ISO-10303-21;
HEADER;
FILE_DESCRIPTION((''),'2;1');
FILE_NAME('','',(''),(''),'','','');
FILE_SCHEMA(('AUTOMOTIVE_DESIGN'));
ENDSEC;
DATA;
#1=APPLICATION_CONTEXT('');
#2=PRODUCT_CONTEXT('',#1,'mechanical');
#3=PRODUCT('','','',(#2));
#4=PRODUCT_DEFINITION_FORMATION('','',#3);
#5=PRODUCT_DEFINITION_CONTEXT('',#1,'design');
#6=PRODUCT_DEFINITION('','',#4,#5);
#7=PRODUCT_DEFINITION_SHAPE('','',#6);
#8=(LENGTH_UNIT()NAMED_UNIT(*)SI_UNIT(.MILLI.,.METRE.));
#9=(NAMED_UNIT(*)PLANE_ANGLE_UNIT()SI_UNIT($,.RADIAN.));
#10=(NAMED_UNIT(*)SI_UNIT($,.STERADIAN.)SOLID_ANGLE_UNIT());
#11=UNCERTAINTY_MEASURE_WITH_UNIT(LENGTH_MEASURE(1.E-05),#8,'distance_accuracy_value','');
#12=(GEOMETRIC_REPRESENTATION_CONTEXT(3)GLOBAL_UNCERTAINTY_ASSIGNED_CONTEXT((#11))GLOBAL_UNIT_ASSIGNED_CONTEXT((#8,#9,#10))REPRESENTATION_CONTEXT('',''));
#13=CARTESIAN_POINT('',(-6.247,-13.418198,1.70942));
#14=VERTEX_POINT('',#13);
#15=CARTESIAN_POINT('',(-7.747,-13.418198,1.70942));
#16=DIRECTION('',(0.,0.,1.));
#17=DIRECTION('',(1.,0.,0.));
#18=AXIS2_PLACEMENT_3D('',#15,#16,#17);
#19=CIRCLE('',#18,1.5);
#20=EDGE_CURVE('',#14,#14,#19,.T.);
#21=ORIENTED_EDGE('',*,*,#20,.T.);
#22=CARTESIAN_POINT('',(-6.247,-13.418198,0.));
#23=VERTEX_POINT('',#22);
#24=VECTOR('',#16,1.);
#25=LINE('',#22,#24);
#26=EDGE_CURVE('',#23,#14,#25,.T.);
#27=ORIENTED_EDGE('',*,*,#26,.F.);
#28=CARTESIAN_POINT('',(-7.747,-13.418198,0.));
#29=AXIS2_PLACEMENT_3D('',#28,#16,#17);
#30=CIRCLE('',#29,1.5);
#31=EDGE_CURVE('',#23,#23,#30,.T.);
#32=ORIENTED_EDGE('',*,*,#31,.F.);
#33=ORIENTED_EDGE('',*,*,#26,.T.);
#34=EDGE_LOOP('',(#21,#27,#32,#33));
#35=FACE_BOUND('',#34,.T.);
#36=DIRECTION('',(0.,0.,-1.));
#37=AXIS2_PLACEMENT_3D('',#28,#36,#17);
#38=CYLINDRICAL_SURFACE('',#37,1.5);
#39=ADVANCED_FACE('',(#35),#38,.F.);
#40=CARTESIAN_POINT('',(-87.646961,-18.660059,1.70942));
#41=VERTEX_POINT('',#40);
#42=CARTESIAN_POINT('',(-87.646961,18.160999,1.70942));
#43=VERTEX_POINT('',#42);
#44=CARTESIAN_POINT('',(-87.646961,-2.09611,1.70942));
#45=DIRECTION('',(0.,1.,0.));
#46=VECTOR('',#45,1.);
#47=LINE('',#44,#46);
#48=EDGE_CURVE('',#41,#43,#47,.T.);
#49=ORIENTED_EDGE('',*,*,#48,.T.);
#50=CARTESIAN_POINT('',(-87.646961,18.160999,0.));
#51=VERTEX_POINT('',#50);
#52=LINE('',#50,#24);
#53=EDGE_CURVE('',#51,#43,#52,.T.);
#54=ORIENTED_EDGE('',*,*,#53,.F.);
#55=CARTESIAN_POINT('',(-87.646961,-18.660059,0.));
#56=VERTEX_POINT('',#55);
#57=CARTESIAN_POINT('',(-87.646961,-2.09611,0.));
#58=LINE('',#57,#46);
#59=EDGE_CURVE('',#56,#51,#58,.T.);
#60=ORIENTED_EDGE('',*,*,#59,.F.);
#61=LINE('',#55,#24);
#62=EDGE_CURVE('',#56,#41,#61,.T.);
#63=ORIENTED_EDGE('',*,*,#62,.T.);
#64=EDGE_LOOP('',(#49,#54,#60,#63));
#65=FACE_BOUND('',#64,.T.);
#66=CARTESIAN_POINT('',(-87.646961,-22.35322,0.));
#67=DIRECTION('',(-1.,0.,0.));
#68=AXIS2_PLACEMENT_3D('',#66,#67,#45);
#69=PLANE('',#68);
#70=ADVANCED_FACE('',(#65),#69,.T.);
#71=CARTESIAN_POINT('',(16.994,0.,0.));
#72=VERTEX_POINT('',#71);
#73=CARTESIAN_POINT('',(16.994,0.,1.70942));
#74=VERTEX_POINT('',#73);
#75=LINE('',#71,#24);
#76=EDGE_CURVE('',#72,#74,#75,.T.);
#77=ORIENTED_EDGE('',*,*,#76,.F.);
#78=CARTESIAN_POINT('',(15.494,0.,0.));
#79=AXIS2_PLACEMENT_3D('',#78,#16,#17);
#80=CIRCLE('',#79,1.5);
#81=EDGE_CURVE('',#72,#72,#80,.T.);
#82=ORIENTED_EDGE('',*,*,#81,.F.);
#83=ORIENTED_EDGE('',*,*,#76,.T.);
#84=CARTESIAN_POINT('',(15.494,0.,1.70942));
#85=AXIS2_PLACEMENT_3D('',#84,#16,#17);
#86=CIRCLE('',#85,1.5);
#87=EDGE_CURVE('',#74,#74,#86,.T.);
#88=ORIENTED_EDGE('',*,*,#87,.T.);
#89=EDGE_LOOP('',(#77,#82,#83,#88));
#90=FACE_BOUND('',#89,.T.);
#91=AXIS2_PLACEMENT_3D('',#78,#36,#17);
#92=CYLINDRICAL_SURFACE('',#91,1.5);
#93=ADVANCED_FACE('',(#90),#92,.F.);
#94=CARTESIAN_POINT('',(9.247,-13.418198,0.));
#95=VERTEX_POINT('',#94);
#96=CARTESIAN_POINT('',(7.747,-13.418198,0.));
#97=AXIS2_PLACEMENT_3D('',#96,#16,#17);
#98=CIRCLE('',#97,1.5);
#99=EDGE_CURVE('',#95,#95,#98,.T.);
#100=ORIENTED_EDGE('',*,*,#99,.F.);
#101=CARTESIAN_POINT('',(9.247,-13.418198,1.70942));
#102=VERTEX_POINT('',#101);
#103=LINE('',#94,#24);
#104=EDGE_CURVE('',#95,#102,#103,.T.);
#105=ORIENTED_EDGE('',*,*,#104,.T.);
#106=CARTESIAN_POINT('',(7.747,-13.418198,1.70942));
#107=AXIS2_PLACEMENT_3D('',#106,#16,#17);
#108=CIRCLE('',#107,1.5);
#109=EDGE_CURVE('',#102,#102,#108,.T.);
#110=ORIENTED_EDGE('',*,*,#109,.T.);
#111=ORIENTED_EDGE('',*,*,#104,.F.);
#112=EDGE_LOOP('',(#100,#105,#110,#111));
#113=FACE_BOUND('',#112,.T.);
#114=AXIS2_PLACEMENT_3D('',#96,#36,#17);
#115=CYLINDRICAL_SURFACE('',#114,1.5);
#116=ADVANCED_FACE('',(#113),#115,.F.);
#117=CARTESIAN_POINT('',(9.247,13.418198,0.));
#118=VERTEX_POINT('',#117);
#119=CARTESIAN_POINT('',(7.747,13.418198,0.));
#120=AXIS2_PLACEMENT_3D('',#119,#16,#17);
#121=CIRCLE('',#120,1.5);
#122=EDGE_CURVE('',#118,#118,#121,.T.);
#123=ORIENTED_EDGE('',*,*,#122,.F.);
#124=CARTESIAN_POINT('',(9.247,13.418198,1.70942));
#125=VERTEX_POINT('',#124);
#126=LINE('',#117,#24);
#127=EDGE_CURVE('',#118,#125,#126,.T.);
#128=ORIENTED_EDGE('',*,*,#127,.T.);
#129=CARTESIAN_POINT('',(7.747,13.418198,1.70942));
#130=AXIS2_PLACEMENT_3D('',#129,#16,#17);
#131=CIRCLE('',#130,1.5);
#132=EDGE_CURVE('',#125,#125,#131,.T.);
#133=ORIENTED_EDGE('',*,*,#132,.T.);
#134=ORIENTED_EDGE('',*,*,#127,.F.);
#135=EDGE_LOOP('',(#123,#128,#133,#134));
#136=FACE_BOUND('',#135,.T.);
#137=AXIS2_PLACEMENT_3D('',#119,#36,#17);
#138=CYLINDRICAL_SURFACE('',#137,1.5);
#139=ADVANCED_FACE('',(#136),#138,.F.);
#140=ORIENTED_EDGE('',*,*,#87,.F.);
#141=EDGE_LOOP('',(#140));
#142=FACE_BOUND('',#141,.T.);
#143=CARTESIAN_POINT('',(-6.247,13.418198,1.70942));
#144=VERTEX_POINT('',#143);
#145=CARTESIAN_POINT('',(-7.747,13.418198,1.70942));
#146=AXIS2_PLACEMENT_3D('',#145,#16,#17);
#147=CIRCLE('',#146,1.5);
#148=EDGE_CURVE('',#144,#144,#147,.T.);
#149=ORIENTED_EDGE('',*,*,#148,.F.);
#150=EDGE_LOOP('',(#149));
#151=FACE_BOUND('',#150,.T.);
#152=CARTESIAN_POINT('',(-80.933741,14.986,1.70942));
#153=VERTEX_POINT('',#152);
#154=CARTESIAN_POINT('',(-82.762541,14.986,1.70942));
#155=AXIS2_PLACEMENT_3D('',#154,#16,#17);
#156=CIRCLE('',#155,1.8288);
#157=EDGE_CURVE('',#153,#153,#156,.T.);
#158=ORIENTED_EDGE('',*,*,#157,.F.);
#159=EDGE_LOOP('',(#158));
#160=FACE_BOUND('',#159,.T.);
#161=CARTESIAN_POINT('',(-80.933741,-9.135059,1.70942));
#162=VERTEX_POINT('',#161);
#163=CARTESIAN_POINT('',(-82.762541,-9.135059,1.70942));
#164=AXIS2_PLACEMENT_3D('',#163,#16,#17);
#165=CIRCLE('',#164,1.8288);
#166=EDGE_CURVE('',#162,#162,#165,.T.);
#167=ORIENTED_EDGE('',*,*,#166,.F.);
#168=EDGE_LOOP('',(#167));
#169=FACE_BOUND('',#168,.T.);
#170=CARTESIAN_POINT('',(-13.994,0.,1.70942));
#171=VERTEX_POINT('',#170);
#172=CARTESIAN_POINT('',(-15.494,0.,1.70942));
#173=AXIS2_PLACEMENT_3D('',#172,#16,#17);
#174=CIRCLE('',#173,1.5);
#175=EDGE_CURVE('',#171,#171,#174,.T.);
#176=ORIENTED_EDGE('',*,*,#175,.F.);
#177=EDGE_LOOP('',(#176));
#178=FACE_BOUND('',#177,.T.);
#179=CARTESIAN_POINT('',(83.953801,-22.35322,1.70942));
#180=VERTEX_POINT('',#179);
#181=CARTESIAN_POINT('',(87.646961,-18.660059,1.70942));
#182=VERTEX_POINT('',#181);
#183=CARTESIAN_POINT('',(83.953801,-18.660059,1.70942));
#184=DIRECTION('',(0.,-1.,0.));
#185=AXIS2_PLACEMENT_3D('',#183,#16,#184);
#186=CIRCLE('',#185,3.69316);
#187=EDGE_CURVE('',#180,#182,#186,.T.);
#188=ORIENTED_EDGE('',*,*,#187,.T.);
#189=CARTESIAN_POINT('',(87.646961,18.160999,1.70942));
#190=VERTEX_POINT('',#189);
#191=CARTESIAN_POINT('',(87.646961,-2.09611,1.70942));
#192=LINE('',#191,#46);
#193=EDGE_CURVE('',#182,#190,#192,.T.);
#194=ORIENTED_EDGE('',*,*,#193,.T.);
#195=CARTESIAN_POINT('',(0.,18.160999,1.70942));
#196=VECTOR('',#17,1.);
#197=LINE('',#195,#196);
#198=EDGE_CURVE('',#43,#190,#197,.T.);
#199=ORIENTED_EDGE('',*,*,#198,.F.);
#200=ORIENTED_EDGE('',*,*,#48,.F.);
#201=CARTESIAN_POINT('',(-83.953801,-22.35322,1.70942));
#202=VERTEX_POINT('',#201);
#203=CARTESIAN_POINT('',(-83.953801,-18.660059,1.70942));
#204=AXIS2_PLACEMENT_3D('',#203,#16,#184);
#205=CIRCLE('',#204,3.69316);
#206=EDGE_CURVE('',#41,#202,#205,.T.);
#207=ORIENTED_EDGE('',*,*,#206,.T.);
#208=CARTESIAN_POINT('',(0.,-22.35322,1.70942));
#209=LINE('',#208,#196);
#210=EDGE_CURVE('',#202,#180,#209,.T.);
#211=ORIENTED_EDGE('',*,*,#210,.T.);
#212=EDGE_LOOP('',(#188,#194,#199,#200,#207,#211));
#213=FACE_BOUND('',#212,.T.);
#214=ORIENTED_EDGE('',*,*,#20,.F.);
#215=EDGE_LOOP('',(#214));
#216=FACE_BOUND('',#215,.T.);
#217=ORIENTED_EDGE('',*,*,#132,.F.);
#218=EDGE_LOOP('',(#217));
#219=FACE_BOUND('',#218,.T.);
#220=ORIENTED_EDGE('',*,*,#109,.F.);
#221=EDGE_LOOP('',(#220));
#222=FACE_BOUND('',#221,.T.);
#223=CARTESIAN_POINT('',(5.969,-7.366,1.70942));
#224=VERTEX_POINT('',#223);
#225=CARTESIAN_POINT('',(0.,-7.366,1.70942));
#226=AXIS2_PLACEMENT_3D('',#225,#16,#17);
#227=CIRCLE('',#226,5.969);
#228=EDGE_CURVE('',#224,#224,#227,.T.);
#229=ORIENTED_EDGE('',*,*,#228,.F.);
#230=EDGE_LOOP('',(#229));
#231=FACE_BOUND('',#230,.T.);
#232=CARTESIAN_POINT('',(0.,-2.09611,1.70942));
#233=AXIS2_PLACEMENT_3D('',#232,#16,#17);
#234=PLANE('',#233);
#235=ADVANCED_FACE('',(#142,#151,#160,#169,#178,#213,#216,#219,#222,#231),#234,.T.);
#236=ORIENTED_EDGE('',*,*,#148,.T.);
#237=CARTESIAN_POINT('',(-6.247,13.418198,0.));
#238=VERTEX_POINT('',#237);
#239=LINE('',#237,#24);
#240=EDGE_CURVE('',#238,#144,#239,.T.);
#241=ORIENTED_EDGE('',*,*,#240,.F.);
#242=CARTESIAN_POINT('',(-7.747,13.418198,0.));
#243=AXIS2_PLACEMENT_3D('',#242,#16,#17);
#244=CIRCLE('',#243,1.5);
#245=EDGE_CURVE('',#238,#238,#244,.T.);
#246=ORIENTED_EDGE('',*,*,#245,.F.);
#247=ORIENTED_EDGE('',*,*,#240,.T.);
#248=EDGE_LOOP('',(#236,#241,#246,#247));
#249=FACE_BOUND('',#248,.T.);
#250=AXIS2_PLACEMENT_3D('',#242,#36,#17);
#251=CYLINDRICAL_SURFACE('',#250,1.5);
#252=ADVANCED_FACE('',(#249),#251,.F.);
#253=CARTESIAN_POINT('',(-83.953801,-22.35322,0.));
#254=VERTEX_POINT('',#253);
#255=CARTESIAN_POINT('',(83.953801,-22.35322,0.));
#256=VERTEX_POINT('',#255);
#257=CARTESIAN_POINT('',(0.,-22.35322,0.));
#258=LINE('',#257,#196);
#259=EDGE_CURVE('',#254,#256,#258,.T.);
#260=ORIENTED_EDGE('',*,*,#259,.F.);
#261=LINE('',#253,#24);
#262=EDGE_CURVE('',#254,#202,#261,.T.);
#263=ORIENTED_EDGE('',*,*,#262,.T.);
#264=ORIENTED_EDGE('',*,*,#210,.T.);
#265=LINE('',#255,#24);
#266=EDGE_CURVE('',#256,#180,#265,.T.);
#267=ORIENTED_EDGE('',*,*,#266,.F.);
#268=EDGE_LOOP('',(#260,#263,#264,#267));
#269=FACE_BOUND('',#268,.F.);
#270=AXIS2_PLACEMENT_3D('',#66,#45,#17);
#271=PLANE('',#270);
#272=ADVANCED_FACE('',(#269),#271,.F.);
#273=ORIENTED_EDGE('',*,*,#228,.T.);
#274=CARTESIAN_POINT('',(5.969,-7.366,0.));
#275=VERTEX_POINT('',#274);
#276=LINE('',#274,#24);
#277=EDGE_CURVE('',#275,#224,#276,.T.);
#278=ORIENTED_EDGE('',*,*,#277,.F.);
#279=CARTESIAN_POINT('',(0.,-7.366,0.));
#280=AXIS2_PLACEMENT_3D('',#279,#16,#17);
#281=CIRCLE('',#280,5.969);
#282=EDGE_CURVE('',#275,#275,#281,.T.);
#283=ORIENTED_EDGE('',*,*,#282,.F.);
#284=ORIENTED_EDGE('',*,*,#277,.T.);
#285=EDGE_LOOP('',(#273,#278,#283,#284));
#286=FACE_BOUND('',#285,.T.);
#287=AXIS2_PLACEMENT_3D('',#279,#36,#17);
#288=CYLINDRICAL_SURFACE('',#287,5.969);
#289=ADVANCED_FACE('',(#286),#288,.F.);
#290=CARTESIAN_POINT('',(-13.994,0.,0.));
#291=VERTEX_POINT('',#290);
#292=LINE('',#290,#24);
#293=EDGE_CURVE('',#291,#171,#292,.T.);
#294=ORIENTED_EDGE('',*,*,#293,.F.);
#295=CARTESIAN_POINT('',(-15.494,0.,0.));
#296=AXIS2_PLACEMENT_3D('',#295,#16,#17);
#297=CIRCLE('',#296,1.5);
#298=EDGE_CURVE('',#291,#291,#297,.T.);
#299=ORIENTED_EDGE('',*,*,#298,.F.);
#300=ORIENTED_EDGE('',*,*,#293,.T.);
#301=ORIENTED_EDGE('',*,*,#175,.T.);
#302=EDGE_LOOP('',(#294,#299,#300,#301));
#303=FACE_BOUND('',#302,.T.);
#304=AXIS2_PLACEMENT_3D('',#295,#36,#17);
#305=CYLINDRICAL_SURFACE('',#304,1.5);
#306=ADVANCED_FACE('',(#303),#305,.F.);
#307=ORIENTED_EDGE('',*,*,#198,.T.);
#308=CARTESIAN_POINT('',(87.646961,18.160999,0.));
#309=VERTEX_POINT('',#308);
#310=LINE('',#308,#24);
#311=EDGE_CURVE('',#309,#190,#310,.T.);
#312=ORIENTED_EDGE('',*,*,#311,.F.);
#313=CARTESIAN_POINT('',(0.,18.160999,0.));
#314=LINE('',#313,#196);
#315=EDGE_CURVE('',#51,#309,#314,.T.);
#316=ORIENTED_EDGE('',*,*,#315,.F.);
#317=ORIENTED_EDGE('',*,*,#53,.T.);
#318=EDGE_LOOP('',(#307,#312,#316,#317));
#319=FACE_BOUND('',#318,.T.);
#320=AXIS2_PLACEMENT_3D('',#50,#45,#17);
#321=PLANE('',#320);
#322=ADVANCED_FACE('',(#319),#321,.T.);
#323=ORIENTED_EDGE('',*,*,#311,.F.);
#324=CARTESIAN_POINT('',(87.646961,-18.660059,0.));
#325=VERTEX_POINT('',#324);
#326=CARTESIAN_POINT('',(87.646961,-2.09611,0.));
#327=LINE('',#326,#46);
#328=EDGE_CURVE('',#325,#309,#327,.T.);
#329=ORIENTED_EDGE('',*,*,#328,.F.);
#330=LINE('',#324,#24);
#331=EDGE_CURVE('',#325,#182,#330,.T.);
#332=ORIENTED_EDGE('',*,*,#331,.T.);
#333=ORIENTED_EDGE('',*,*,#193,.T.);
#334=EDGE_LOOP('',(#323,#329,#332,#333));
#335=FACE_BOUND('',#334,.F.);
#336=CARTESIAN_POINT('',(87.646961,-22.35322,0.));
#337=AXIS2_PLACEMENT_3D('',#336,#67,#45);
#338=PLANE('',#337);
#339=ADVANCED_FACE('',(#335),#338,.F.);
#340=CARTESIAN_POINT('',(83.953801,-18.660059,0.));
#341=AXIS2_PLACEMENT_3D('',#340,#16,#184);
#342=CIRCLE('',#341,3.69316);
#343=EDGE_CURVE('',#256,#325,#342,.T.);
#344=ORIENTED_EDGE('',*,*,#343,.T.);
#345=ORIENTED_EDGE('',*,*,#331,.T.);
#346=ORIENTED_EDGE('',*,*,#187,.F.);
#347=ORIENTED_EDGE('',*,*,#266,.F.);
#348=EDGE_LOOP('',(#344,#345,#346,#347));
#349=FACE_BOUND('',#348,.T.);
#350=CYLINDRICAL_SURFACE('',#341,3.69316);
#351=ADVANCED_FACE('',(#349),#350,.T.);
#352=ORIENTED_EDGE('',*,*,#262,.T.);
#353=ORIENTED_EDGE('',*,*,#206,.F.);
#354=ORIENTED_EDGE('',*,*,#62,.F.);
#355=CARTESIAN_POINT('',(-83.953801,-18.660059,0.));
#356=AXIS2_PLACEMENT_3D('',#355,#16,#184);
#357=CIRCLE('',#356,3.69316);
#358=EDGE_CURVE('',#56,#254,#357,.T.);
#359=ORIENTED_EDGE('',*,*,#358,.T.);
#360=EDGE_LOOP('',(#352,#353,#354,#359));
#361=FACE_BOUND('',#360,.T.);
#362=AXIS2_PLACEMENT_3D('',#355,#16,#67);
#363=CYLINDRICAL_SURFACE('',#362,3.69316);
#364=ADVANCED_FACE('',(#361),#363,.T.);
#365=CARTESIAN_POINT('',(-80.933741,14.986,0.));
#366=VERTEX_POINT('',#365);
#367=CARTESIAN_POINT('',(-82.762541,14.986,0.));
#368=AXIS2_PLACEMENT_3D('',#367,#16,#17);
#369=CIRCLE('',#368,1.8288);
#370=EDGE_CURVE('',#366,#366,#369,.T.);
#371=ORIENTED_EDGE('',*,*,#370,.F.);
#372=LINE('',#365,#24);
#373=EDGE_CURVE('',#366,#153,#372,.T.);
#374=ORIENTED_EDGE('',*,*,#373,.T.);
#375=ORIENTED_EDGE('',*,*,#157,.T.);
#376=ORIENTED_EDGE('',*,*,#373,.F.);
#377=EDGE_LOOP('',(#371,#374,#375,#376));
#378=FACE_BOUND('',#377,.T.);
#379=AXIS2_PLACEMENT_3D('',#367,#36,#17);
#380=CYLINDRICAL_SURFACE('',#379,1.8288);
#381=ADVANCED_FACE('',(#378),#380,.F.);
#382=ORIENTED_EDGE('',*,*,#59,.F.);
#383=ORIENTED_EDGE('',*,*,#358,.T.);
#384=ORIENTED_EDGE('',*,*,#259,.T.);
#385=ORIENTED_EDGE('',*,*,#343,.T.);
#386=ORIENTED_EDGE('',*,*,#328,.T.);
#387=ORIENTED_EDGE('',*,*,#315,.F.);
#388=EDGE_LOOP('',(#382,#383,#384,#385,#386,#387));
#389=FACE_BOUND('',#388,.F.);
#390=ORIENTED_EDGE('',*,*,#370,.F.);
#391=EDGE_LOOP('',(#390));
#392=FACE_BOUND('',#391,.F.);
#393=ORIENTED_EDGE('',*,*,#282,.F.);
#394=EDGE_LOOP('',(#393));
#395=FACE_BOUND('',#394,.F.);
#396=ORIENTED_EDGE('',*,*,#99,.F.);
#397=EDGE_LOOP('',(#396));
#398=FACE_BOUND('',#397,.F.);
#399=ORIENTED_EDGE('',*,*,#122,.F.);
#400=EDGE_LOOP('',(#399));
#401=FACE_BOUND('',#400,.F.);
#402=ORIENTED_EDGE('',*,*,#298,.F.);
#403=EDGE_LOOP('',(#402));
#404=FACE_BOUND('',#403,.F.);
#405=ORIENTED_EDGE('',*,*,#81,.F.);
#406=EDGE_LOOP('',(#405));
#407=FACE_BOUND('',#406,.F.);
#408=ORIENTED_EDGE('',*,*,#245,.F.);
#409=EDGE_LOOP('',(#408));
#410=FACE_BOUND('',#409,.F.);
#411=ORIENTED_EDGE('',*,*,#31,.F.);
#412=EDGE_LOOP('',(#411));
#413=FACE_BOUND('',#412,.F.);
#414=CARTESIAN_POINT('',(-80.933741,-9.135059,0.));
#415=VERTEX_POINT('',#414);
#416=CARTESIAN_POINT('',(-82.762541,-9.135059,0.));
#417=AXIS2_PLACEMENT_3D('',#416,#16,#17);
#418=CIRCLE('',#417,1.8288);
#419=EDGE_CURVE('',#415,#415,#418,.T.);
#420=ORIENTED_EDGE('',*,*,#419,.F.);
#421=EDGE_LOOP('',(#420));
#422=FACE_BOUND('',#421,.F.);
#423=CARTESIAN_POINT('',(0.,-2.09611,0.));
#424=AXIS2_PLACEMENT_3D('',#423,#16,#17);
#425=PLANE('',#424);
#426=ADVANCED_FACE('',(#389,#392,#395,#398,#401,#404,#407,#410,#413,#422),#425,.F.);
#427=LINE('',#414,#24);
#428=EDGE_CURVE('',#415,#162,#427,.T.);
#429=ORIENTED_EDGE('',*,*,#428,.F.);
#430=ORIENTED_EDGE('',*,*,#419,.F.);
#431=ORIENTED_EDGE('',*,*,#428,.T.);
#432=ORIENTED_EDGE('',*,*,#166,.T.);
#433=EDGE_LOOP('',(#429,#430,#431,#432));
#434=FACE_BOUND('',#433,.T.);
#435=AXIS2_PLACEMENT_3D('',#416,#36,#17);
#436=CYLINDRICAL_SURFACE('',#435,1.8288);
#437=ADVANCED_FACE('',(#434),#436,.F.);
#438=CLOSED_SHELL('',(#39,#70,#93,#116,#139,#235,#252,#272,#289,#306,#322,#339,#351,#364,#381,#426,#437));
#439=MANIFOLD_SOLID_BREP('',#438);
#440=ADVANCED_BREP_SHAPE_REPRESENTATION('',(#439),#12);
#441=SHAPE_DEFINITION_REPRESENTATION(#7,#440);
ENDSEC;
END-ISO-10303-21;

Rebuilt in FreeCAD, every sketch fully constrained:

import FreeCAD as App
import Part
import Sketcher
from FreeCAD import Vector
Q = App.Units.Quantity


def edges_at(feature, points):
    """Names of the edges that pass closest to the given points."""
    edges = feature.Shape.Edges
    near = lambda p: min(range(len(edges)), key=lambda i: edges[i].distToShape(Part.Vertex(*p))[0])
    return sorted({f"Edge{near(p) + 1}" for p in points})


def add_polygon(sketch, points):
    """Adds a closed chain of lines whose ends are joined by coincident constraints."""
    first, n = sketch.GeometryCount, len(points)
    for a, b in zip(points, points[1:] + points[:1]):
        sketch.addGeometry(Part.LineSegment(App.Vector(*a, 0), App.Vector(*b, 0)), False)
    for i in range(n):
        sketch.addConstraint(Sketcher.Constraint("Coincident", first + i, 2, first + (i + 1) % n, 1))

doc = App.newDocument("Part")
params = doc.addObject("Spreadsheet::Sheet", "Params")
for row, (alias, value) in enumerate([
    ("sketch1_diameter", "0.47 in"),
    ("sketch1_diameter2", "0.144 in"),
    ("pad1_length", "0.0673 in"),
    ("fillet_radius", "0.1454 in"),
], start=1):
    params.set(f"A{row}", alias)
    params.set(f"B{row}", "=" + value)
    params.setAlias(f"B{row}", alias)

body = doc.addObject("PartDesign::Body", "Body")

# Sketch on XY plane
sketch1 = body.newObject("Sketcher::SketchObject", "Sketch")
sketch1.AttachmentSupport = (doc.getObject("XY_Plane"), [""])
sketch1.MapMode = "FlatFace"
add_polygon(sketch1, [(-87.6, 18.2), (-87.6, -22.4), (87.6, -22.4), (87.6, 18.2)])  # lines 0-3
sketch1.addGeometry(Part.Circle(Vector(-82.8, -9.1, 0), Vector(0, 0, 1), 1.8), False)  # 4
sketch1.addGeometry(Part.Circle(Vector(-7.7, -13.4, 0), Vector(0, 0, 1), 1.5), False)  # 5
sketch1.addGeometry(Part.Circle(Vector(7.7, -13.4, 0), Vector(0, 0, 1), 1.5), False)  # 6
sketch1.addGeometry(Part.Circle(Vector(0, -7.4, 0), Vector(0, 0, 1), 6), False)  # 7
sketch1.addGeometry(Part.Circle(Vector(-15.5, 0, 0), Vector(0, 0, 1), 1.5), False)  # 8
sketch1.addGeometry(Part.Circle(Vector(15.5, 0, 0), Vector(0, 0, 1), 1.5), False)  # 9
sketch1.addGeometry(Part.Circle(Vector(-82.8, 15, 0), Vector(0, 0, 1), 1.8), False)  # 10
sketch1.addGeometry(Part.Circle(Vector(-7.7, 13.4, 0), Vector(0, 0, 1), 1.5), False)  # 11
sketch1.addGeometry(Part.Circle(Vector(7.7, 13.4, 0), Vector(0, 0, 1), 1.5), False)  # 12
sketch1.addConstraint([
    Sketcher.Constraint("Vertical", 0),
    Sketcher.Constraint("Horizontal", 1),
    Sketcher.Constraint("Vertical", 2),
    Sketcher.Constraint("Horizontal", 3),
    Sketcher.Constraint("Equal", 5, 6),
    Sketcher.Constraint("Equal", 6, 8),
    Sketcher.Constraint("Equal", 8, 9),
    Sketcher.Constraint("Equal", 4, 10),
    Sketcher.Constraint("Equal", 9, 11),
    Sketcher.Constraint("Equal", 11, 12),
    Sketcher.Constraint("Symmetric", 8, 3, 9, 3, -1, 1),
    Sketcher.Constraint("Symmetric", 6, 3, 11, 3, -1, 1),
    Sketcher.Constraint("Symmetric", 5, 3, 12, 3, -1, 1),
    Sketcher.Constraint("Symmetric", 5, 3, 6, 3, -2),
    Sketcher.Constraint("PointOnObject", 7, 3, -2),
    Sketcher.Constraint("PointOnObject", 8, 3, -1),
    Sketcher.Constraint("Vertical", 4, 3, 10, 3),
    Sketcher.Constraint("Diameter", 7, Q("0.47 in")),
    Sketcher.Constraint("Diameter", 4, Q("0.144 in")),
    Sketcher.Constraint("Diameter", 5, 3.0),
    Sketcher.Constraint("DistanceY", 7, 3, -1, 1, Q("0.29 in")),
    Sketcher.Constraint("DistanceX", 8, 3, -1, 1, Q("0.61 in")),
    Sketcher.Constraint("DistanceY", -1, 1, 10, 3, Q("0.59 in")),
    Sketcher.Constraint("DistanceX", 5, 3, 6, 3, Q("0.61 in")),
    Sketcher.Constraint("DistanceY", -1, 1, 2, 2, Q("0.715 in")),
    Sketcher.Constraint("DistanceX", 0, 2, 4, 3, Q("0.1923 in")),
    Sketcher.Constraint("DistanceY", 0, 2, 4, 3, Q("0.5204 in")),
    Sketcher.Constraint("DistanceX", 1, 1, 1, 2, 175.293922),
    Sketcher.Constraint("DistanceY", 0, 2, 0, 1, 40.514219),
    Sketcher.Constraint("DistanceY", 5, 3, 7, 3, 6.052198),
    Sketcher.Constraint("DistanceX", 4, 3, -1, 1, 82.762541),
])
sketch1.setExpression("Constraints[21]", "Params.sketch1_diameter")
sketch1.setExpression("Constraints[22]", "Params.sketch1_diameter2")
pad1 = body.newObject("PartDesign::Pad", "Pad")
pad1.Profile = sketch1
pad1.setExpression("Length", "Params.pad1_length")
doc.recompute()

fillet = body.newObject("PartDesign::Fillet", "Fillet")
fillet.Base = (pad1, edges_at(pad1, [(-87.647, -22.353, 0.855), (87.647, -22.353, 0.855)]))
fillet.setExpression("Radius", "Params.fillet_radius")

doc.recompute()
